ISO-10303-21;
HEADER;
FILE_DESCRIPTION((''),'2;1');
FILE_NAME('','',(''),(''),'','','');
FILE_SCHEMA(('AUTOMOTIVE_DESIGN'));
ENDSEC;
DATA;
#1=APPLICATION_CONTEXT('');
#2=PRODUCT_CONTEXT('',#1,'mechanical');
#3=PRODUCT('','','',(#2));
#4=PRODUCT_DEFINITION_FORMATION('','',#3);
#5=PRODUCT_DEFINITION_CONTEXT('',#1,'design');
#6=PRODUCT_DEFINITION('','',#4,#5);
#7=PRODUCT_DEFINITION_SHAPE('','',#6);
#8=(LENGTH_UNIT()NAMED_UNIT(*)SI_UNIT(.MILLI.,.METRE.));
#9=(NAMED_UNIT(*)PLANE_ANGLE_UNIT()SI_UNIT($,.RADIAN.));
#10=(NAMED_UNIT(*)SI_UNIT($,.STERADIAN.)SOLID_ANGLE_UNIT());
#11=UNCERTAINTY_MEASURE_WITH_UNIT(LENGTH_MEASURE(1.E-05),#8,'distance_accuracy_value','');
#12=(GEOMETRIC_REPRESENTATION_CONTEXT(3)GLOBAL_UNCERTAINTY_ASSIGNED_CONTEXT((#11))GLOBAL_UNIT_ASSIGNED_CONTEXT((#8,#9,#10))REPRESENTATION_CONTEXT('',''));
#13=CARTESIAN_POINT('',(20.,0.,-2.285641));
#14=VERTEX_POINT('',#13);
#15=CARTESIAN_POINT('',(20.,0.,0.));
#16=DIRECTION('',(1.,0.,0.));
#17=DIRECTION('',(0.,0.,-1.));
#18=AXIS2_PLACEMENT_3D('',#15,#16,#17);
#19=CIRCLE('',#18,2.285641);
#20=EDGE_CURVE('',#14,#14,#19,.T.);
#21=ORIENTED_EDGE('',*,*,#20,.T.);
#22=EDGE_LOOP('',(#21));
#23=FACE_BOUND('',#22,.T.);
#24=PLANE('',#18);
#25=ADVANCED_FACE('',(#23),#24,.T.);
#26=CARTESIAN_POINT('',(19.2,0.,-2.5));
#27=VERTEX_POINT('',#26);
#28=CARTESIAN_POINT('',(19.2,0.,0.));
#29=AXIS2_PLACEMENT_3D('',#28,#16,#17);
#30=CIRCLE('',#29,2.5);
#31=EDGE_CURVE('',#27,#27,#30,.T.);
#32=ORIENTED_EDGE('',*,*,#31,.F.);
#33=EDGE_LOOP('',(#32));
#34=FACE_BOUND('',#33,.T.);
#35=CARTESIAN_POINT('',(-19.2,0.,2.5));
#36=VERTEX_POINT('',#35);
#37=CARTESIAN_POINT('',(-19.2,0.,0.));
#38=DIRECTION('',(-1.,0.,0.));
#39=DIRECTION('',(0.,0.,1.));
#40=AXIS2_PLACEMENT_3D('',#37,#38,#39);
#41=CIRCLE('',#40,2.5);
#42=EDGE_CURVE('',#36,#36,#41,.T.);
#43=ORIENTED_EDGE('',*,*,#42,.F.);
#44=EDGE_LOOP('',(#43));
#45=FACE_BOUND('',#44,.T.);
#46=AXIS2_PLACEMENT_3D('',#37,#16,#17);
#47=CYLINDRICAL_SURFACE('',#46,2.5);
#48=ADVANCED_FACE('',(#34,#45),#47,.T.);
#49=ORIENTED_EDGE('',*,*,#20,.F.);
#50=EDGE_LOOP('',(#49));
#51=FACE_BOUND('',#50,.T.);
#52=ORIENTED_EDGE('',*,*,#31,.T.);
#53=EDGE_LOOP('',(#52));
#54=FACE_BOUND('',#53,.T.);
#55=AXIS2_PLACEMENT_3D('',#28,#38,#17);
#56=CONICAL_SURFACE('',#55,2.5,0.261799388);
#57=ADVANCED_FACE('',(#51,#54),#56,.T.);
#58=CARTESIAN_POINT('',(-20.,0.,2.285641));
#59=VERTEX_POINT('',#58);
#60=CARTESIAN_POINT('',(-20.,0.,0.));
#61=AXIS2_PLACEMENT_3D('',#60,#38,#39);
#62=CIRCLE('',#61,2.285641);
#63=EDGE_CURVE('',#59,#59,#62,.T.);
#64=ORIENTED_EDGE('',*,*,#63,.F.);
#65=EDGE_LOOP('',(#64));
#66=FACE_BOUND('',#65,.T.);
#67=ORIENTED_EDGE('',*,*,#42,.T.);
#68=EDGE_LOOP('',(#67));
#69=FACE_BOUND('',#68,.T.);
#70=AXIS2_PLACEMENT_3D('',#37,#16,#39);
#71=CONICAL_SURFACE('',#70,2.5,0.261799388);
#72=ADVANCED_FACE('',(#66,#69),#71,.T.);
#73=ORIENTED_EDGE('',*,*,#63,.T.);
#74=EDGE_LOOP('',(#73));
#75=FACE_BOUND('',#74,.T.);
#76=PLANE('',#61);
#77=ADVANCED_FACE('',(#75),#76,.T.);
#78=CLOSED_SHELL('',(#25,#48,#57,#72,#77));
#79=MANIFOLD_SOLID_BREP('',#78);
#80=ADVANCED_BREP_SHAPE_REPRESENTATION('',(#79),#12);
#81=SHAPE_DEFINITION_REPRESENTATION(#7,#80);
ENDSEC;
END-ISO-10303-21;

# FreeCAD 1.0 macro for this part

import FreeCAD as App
import Part
import Sketcher

V = App.Vector
Q = App.Units.Quantity

doc = App.newDocument("Part")
body = doc.addObject("PartDesign::Body", "Body")

# Sketch on YZ plane
sketch1 = body.newObject("Sketcher::SketchObject", "Sketch")
sketch1.AttachmentSupport = (doc.getObject("YZ_Plane"), [""])
sketch1.MapMode = "FlatFace"
sketch1.addGeometry(Part.Circle(V(0, 0, 0), V(0, 0, 1), 2.5), False)
sketch1.addConstraint([
    Sketcher.Constraint("Coincident", 0, 3, -1, 1),
    Sketcher.Constraint("Diameter", 0, Q("5 mm")),
])
pad1 = body.newObject("PartDesign::Pad", "Pad")
pad1.Profile = sketch1
pad1.Type = "TwoLengths"
pad1.Length = 19.2
pad1.Length2 = 19.2

# Sketch on YZ plane
sketch2 = body.newObject("Sketcher::SketchObject", "Sketch001")
sketch2.AttachmentSupport = (doc.getObject("YZ_Plane"), [""])
sketch2.MapMode = "FlatFace"
sketch2.AttachmentOffset = App.Placement(V(0, 0, 19.2), App.Rotation())
sketch2.addGeometry(Part.Circle(V(0, 0, 0), V(0, 0, 1), 2.5), False)
sketch2.addConstraint([
    Sketcher.Constraint("Coincident", 0, 3, -1, 1),
    Sketcher.Constraint("Diameter", 0, Q("5 mm")),
])
pad2 = body.newObject("PartDesign::Pad", "Pad001")
pad2.Profile = sketch2
pad2.Length = 0.8
pad2.TaperAngle = -15

# Sketch on YZ plane
sketch3 = body.newObject("Sketcher::SketchObject", "Sketch002")
sketch3.AttachmentSupport = (doc.getObject("YZ_Plane"), [""])
sketch3.MapMode = "FlatFace"
sketch3.AttachmentOffset = App.Placement(V(0, 0, -19.2), App.Rotation())
sketch3.addGeometry(Part.Circle(V(0, 0, 0), V(0, 0, 1), 2.5), False)
sketch3.addConstraint([
    Sketcher.Constraint("Coincident", 0, 3, -1, 1),
    Sketcher.Constraint("Diameter", 0, Q("5 mm")),
])
pad3 = body.newObject("PartDesign::Pad", "Pad002")
pad3.Profile = sketch3
pad3.Length = 0.8
pad3.Reversed = True
pad3.TaperAngle = -15

doc.recompute()
